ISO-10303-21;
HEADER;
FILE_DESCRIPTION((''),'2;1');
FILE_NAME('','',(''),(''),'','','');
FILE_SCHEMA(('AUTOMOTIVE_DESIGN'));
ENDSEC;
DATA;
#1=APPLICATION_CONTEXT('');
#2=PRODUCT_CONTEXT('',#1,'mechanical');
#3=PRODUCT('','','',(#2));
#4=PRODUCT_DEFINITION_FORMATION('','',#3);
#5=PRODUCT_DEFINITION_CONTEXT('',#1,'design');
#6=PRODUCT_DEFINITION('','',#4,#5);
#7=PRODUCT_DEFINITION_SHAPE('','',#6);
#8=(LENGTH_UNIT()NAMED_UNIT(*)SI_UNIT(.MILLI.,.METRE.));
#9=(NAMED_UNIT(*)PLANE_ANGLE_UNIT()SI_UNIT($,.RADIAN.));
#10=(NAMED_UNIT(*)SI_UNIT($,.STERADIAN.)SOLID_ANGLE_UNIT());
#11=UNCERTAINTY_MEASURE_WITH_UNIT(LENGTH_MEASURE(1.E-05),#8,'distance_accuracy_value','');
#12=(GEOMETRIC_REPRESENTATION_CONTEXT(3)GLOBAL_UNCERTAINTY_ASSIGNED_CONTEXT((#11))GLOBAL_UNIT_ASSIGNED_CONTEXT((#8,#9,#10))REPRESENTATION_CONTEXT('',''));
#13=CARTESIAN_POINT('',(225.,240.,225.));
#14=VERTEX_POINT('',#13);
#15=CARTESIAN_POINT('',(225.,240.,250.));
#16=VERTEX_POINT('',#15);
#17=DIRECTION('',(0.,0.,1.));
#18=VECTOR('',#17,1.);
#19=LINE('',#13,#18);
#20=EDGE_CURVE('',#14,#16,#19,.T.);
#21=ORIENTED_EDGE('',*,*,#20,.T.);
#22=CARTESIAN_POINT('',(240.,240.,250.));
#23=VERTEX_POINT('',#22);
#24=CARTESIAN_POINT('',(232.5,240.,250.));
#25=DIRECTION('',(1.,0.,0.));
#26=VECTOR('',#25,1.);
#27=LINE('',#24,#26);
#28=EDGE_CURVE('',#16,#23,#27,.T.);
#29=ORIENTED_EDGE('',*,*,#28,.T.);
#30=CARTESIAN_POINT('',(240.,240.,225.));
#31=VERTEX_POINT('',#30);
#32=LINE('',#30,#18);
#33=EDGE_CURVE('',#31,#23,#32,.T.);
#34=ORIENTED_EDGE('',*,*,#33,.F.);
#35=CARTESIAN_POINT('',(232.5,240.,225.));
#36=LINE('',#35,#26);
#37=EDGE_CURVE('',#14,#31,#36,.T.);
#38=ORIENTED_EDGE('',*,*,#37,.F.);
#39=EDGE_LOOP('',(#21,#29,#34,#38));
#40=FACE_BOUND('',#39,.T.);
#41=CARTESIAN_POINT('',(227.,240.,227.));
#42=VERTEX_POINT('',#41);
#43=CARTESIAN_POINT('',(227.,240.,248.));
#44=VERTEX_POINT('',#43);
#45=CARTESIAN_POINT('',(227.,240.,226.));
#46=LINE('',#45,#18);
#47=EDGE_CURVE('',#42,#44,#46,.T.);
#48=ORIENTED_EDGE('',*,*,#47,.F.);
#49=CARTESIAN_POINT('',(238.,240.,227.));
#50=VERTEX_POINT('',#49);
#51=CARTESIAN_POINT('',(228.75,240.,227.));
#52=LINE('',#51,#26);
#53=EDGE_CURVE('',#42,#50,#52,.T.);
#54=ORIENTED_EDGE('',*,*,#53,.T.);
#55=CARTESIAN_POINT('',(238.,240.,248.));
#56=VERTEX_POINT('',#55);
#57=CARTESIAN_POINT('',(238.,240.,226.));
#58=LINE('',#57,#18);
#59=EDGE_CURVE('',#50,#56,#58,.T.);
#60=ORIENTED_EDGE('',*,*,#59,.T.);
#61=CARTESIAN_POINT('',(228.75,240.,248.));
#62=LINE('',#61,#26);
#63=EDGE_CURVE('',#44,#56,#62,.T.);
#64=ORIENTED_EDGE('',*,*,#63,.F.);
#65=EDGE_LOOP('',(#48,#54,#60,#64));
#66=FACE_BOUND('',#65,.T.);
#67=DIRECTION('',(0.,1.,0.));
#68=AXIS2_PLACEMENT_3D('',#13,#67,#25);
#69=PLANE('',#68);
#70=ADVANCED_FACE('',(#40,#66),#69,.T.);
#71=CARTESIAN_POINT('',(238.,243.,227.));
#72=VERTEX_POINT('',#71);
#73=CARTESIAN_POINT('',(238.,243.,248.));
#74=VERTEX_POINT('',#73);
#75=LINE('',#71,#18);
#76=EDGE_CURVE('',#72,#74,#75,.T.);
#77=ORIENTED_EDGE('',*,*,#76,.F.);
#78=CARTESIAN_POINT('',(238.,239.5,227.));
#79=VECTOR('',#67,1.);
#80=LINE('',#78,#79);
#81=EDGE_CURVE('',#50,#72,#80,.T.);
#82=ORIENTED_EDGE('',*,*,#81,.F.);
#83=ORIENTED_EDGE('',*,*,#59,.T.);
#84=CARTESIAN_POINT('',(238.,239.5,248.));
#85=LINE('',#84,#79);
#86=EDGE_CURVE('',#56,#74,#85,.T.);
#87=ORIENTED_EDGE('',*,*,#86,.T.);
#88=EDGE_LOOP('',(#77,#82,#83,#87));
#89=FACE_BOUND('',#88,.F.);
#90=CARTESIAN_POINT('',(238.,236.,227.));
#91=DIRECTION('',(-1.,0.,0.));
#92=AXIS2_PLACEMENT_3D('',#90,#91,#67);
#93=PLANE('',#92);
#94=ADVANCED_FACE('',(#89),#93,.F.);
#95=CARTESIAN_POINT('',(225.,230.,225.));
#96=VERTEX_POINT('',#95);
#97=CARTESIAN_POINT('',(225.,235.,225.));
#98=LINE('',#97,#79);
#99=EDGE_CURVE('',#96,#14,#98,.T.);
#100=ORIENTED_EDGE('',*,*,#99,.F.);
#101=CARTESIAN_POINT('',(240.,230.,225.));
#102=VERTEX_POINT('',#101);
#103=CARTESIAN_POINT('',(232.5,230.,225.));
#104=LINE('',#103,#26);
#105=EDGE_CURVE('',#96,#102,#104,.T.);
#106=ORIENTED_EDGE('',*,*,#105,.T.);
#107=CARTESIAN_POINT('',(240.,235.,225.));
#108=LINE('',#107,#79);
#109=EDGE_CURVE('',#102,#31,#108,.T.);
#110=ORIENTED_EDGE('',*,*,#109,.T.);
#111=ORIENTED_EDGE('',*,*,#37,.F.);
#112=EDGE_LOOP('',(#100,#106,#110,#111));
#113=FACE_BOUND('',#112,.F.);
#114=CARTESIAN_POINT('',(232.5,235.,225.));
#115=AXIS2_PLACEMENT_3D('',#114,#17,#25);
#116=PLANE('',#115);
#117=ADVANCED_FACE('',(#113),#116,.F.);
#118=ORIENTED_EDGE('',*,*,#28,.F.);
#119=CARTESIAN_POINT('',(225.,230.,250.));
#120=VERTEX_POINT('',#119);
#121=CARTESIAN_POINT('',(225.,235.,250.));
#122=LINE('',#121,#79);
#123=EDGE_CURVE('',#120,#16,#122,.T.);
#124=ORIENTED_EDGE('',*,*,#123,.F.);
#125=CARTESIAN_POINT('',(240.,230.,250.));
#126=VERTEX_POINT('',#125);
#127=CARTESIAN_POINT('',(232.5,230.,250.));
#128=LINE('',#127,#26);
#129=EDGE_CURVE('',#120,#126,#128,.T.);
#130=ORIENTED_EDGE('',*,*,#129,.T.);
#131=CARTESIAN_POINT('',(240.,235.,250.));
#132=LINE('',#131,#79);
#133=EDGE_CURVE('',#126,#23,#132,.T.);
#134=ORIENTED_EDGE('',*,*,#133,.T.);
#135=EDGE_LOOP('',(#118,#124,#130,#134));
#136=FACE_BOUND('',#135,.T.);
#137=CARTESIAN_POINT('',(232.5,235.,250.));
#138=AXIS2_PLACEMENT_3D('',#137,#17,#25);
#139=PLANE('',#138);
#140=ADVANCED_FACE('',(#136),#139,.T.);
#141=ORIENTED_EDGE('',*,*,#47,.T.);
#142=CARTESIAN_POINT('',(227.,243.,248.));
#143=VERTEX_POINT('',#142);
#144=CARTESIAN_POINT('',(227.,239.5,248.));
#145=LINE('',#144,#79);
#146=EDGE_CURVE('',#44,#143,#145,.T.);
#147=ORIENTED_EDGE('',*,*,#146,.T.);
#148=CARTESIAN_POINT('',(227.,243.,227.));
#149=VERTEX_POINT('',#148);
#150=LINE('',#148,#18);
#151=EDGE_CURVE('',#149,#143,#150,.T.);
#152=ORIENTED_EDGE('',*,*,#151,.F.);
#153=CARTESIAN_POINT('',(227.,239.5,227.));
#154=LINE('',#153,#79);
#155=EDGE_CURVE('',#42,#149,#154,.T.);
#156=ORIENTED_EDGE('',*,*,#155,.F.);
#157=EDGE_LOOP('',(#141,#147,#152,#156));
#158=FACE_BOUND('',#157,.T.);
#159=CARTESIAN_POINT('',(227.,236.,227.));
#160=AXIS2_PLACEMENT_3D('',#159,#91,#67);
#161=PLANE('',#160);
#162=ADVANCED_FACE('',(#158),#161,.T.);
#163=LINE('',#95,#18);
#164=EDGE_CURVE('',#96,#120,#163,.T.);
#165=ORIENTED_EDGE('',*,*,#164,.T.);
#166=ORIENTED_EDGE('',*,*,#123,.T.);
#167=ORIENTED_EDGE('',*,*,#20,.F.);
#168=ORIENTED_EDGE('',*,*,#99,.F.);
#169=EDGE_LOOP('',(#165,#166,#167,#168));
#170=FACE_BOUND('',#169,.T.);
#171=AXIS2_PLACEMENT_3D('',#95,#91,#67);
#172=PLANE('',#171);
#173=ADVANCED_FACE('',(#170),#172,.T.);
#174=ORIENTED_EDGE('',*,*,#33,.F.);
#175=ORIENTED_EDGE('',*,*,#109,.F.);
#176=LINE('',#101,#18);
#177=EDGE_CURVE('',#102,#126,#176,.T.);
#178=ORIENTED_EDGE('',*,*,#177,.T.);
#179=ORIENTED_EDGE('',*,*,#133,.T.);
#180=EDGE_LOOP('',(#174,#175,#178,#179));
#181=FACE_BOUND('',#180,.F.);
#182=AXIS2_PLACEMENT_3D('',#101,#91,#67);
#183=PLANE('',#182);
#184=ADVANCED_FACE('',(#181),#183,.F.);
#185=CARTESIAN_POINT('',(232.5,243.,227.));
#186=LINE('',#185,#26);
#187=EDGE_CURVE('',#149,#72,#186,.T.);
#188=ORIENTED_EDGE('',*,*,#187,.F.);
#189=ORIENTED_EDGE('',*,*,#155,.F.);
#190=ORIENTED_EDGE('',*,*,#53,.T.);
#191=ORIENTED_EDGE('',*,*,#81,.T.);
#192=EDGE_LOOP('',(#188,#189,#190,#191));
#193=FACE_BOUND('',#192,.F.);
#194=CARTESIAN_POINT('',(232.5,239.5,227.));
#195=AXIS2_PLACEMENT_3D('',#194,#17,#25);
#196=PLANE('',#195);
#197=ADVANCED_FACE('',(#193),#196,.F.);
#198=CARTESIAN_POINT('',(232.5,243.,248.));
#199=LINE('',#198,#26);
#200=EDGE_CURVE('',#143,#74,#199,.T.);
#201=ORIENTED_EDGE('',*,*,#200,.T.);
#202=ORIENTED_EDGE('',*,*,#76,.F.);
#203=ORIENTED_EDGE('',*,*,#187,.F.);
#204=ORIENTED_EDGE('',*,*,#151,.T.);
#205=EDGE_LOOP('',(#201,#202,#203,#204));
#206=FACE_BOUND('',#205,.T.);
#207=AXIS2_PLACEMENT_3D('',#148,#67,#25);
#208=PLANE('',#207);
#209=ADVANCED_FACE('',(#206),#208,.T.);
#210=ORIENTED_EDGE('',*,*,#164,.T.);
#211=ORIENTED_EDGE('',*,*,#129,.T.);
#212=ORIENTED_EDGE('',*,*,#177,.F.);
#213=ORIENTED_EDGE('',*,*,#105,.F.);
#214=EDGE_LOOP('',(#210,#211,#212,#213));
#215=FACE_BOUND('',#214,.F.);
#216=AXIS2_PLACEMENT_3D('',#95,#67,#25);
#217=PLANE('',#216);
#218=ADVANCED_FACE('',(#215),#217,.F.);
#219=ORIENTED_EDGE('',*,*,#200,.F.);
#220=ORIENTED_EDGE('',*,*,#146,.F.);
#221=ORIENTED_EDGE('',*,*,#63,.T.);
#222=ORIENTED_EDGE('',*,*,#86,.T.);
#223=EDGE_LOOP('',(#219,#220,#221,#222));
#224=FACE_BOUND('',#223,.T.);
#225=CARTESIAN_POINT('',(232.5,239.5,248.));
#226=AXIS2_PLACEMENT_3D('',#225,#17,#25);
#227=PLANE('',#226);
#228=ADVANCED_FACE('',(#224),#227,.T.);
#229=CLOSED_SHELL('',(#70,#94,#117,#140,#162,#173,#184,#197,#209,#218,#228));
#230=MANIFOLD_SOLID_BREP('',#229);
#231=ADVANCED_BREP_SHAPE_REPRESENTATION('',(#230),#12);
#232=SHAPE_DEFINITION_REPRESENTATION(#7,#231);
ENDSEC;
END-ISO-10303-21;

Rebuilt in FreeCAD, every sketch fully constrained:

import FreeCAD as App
import Part
import Sketcher

V = App.Vector
Q = App.Units.Quantity


def add_polygon(sketch, points):
    """Adds a closed chain of lines whose ends are joined by coincident constraints."""
    first, n = sketch.GeometryCount, len(points)
    for a, b in zip(points, points[1:] + points[:1]):
        sketch.addGeometry(Part.LineSegment(App.Vector(*a, 0), App.Vector(*b, 0)), False)
    for i in range(n):
        sketch.addConstraint(Sketcher.Constraint("Coincident", first + i, 2, first + (i + 1) % n, 1))

doc = App.newDocument("Part")
body = doc.addObject("PartDesign::Body", "Body")

# Sketch on XY plane
sketch1 = body.newObject("Sketcher::SketchObject", "Sketch")
sketch1.AttachmentSupport = (doc.getObject("XY_Plane"), [""])
sketch1.MapMode = "FlatFace"
sketch1.AttachmentOffset = App.Placement(V(0, 0, 227), App.Rotation())
add_polygon(sketch1, [(227, 243), (227, 236), (238, 236), (238, 243)])  # lines 0-3
sketch1.addConstraint(Sketcher.Constraint("Vertical", 0))
sketch1.addConstraint(Sketcher.Constraint("Horizontal", 1))
sketch1.addConstraint(Sketcher.Constraint("Vertical", 2))
sketch1.addConstraint(Sketcher.Constraint("Horizontal", 3))
sketch1.addConstraint(Sketcher.Constraint("DistanceX", 1, 1, 1, 2, Q("11 mm")))
sketch1.addConstraint(Sketcher.Constraint("DistanceY", 0, 2, 0, 1, Q("7 mm")))
sketch1.addConstraint(Sketcher.Constraint("DistanceX", -1, 1, 0, 2, Q("227 mm")))
sketch1.addConstraint(Sketcher.Constraint("DistanceY", -1, 1, 0, 2, Q("236 mm")))
pad1 = body.newObject("PartDesign::Pad", "Pad")
pad1.Profile = sketch1
pad1.Length = 21
body2 = doc.addObject("PartDesign::Body", "Body001")

# Sketch on XY plane
sketch2 = body2.newObject("Sketcher::SketchObject", "Sketch001")
sketch2.AttachmentSupport = (doc.getObject("XY_Plane001"), [""])
sketch2.MapMode = "FlatFace"
sketch2.AttachmentOffset = App.Placement(V(0, 0, 225), App.Rotation())
add_polygon(sketch2, [(225, 240), (225, 230), (240, 230), (240, 240)])  # lines 0-3
sketch2.addConstraint(Sketcher.Constraint("Vertical", 0))
sketch2.addConstraint(Sketcher.Constraint("Horizontal", 1))
sketch2.addConstraint(Sketcher.Constraint("Vertical", 2))
sketch2.addConstraint(Sketcher.Constraint("Horizontal", 3))
sketch2.addConstraint(Sketcher.Constraint("DistanceX", 1, 1, 1, 2, Q("15 mm")))
sketch2.addConstraint(Sketcher.Constraint("DistanceY", 0, 2, 0, 1, Q("10 mm")))
sketch2.addConstraint(Sketcher.Constraint("DistanceX", -1, 1, 0, 2, Q("225 mm")))
sketch2.addConstraint(Sketcher.Constraint("DistanceY", -1, 1, 0, 2, Q("230 mm")))
pad2 = body2.newObject("PartDesign::Pad", "Pad001")
pad2.Profile = sketch2
pad2.Length = 25
doc.recompute()

boolean = body2.newObject("PartDesign::Boolean", "Boolean")
boolean.Type = "Fuse"
boolean.addObjects([body])

doc.recompute()
